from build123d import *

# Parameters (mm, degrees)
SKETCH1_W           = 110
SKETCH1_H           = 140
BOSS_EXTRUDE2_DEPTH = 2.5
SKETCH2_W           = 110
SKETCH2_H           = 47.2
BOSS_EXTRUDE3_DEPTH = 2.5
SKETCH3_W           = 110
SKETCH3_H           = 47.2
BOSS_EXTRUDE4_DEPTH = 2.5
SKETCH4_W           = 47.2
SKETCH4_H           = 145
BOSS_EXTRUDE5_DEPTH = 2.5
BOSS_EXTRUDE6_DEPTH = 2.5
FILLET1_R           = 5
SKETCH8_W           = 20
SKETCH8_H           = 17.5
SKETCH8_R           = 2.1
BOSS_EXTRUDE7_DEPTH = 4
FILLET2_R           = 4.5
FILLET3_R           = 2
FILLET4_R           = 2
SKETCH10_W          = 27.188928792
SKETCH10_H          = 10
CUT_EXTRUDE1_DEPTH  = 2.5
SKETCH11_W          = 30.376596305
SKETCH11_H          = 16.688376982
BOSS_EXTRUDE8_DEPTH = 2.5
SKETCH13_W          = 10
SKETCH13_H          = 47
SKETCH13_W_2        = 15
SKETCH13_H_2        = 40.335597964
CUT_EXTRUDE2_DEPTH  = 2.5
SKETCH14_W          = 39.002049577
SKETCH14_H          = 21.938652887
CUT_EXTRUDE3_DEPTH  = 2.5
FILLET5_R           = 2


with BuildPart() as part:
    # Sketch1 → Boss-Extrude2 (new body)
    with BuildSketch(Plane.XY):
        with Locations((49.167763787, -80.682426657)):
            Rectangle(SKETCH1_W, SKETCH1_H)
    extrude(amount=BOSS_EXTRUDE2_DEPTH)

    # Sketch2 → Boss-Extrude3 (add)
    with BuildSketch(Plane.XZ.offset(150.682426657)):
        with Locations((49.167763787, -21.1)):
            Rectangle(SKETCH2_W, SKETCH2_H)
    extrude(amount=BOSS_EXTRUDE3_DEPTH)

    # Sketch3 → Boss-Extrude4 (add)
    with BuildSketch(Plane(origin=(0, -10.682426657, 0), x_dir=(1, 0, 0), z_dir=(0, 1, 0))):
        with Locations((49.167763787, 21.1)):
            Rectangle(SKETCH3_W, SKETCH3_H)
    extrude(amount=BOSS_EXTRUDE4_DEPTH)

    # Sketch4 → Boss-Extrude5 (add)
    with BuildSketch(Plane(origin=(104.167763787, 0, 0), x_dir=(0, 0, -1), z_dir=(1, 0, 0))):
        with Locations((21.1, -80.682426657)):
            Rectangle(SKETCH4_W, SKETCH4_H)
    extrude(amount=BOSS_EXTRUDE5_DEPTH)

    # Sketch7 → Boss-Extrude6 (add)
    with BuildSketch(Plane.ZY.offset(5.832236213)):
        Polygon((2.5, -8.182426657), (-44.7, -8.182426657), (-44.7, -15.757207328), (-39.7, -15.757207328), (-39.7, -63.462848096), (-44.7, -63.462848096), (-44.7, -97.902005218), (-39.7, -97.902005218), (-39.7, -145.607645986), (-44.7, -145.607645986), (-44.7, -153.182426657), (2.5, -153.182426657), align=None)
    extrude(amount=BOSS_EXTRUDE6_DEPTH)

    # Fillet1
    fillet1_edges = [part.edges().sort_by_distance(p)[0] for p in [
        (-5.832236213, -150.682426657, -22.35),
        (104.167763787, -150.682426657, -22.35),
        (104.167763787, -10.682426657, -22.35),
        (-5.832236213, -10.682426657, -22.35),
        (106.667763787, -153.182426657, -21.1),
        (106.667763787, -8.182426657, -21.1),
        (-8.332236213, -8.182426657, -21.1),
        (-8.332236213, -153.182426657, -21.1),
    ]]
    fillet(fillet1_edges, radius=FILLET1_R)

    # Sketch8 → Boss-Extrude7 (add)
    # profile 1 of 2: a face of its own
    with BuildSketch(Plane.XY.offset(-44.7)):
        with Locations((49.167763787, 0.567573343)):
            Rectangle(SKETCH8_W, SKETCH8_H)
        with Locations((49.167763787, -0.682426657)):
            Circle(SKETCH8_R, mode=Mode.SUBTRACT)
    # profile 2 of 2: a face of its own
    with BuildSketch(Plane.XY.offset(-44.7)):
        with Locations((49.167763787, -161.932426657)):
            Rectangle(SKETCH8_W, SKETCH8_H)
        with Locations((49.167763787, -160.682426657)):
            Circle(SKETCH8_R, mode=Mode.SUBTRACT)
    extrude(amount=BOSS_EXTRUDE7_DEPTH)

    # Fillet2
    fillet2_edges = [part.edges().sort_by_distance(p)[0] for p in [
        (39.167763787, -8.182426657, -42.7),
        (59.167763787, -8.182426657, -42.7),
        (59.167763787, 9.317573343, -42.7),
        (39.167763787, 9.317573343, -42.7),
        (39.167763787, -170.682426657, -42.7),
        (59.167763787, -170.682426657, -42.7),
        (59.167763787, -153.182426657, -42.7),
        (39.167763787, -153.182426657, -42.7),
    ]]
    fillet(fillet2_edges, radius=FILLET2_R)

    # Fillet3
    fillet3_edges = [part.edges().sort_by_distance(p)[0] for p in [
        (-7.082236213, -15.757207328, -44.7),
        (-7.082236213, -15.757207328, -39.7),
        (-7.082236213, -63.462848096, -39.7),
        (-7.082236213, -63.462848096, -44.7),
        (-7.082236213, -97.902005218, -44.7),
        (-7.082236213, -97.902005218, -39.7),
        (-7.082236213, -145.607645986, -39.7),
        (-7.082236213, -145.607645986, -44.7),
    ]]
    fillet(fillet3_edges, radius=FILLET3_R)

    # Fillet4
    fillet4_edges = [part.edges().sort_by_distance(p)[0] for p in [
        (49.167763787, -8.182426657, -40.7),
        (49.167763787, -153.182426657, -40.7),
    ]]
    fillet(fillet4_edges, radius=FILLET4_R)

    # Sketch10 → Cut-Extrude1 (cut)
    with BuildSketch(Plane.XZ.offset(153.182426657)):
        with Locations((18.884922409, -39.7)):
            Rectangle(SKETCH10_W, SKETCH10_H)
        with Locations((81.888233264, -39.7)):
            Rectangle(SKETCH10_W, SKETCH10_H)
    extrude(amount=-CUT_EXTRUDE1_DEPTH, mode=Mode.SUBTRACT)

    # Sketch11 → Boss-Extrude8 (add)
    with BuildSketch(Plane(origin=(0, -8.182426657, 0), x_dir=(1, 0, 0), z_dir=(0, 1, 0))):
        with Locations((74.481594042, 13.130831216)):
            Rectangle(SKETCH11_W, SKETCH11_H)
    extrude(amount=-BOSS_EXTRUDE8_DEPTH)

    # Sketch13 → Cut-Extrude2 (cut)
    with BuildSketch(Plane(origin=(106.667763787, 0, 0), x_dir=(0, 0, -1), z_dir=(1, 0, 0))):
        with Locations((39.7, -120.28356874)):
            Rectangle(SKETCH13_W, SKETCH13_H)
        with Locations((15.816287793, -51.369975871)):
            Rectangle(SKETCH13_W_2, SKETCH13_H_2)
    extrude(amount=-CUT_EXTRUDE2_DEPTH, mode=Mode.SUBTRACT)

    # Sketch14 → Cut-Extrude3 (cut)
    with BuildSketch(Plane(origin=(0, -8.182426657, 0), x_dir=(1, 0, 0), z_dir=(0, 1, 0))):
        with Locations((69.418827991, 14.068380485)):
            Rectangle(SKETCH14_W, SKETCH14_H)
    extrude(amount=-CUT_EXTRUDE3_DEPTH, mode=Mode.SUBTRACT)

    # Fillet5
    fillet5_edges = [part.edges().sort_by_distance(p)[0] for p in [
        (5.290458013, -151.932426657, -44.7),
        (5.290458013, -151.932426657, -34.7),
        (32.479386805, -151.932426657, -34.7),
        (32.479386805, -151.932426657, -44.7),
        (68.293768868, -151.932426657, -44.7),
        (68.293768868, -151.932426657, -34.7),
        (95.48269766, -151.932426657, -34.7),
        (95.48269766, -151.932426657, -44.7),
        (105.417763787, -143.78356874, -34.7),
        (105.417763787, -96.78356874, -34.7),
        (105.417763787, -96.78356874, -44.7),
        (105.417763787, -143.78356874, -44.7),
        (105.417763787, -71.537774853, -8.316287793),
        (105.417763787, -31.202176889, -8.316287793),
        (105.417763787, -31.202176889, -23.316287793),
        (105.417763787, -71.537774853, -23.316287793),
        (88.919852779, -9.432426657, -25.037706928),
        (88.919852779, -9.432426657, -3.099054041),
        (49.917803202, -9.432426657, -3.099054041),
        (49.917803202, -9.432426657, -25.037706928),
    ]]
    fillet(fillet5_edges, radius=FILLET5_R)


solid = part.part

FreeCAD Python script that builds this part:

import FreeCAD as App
import Part
import Sketcher
Q = App.Units.Quantity


def edges_at(feature, points):
    """Names of the edges that pass closest to the given points."""
    edges = feature.Shape.Edges
    near = lambda p: min(range(len(edges)), key=lambda i: edges[i].distToShape(Part.Vertex(*p))[0])
    return sorted({f"Edge{near(p) + 1}" for p in points})

doc = App.newDocument("Part")
body = doc.addObject("PartDesign::Body", "Body")

# Sketch on XY plane
sketch1 = body.newObject("Sketcher::SketchObject", "Sketch")
sketch1.AttachmentSupport = (doc.getObject("XY_Plane"), [""])
sketch1.MapMode = "FlatFace"
sketch1.addGeometry([
    Part.LineSegment(App.Vector(-6, -11, 0), App.Vector(-6, -151, 0)),
    Part.LineSegment(App.Vector(-6, -151, 0), App.Vector(104, -151, 0)),
    Part.LineSegment(App.Vector(104, -151, 0), App.Vector(104, -11, 0)),
    Part.LineSegment(App.Vector(104, -11, 0), App.Vector(-6, -11, 0)),
], False)
sketch1.addConstraint([
    Sketcher.Constraint("Coincident", 0, 2, 1, 1),
    Sketcher.Constraint("Coincident", 1, 2, 2, 1),
    Sketcher.Constraint("Coincident", 2, 2, 3, 1),
    Sketcher.Constraint("Coincident", 3, 2, 0, 1),
    Sketcher.Constraint("Vertical", 0),
    Sketcher.Constraint("Horizontal", 1),
    Sketcher.Constraint("Vertical", 2),
    Sketcher.Constraint("Horizontal", 3),
    Sketcher.Constraint("DistanceX", 1, 1, 1, 2, Q("110 mm")),
    Sketcher.Constraint("DistanceY", 0, 2, 0, 1, Q("140 mm")),
    Sketcher.Constraint("DistanceX", 0, 2, -1, 1, Q("5.832236 mm")),
    Sketcher.Constraint("DistanceY", 0, 2, -1, 1, Q("150.682427 mm")),
])
pad1 = body.newObject("PartDesign::Pad", "Pad")
pad1.Profile = sketch1
pad1.Length = 2.5

# Sketch on XZ plane
sketch2 = body.newObject("Sketcher::SketchObject", "Sketch001")
sketch2.AttachmentSupport = (doc.getObject("XZ_Plane"), [""])
sketch2.MapMode = "FlatFace"
sketch2.AttachmentOffset = App.Placement(App.Vector(0, 0, 150.682427), App.Rotation())
sketch2.addGeometry([
    Part.LineSegment(App.Vector(-6, 2, 0), App.Vector(-6, -45, 0)),
    Part.LineSegment(App.Vector(-6, -45, 0), App.Vector(104, -45, 0)),
    Part.LineSegment(App.Vector(104, -45, 0), App.Vector(104, 2, 0)),
    Part.LineSegment(App.Vector(104, 2, 0), App.Vector(-6, 2, 0)),
], False)
sketch2.addConstraint([
    Sketcher.Constraint("Coincident", 0, 2, 1, 1),
    Sketcher.Constraint("Coincident", 1, 2, 2, 1),
    Sketcher.Constraint("Coincident", 2, 2, 3, 1),
    Sketcher.Constraint("Coincident", 3, 2, 0, 1),
    Sketcher.Constraint("Vertical", 0),
    Sketcher.Constraint("Horizontal", 1),
    Sketcher.Constraint("Vertical", 2),
    Sketcher.Constraint("Horizontal", 3),
    Sketcher.Constraint("DistanceX", 1, 1, 1, 2, Q("110 mm")),
    Sketcher.Constraint("DistanceY", 0, 2, 0, 1, Q("47.2 mm")),
    Sketcher.Constraint("DistanceY", 0, 2, -1, 1, Q("44.7 mm")),
    Sketcher.Constraint("DistanceX", 0, 2, -1, 1, Q("5.832236 mm")),
])
pad2 = body.newObject("PartDesign::Pad", "Pad001")
pad2.Profile = sketch2
pad2.Length = 2.5

# Sketch on XZ plane
sketch3 = body.newObject("Sketcher::SketchObject", "Sketch002")
sketch3.AttachmentSupport = (doc.getObject("XZ_Plane"), [""])
sketch3.MapMode = "FlatFace"
sketch3.AttachmentOffset = App.Placement(App.Vector(0, 0, 10.682427), App.Rotation())
sketch3.addGeometry([
    Part.LineSegment(App.Vector(-6, -45, 0), App.Vector(-6, 2, 0)),
    Part.LineSegment(App.Vector(-6, 2, 0), App.Vector(104, 2, 0)),
    Part.LineSegment(App.Vector(104, 2, 0), App.Vector(104, -45, 0)),
    Part.LineSegment(App.Vector(104, -45, 0), App.Vector(-6, -45, 0)),
], False)
sketch3.addConstraint([
    Sketcher.Constraint("Coincident", 0, 2, 1, 1),
    Sketcher.Constraint("Coincident", 1, 2, 2, 1),
    Sketcher.Constraint("Coincident", 2, 2, 3, 1),
    Sketcher.Constraint("Coincident", 3, 2, 0, 1),
    Sketcher.Constraint("Vertical", 0),
    Sketcher.Constraint("Horizontal", 1),
    Sketcher.Constraint("Vertical", 2),
    Sketcher.Constraint("Horizontal", 3),
    Sketcher.Constraint("DistanceX", 1, 1, 1, 2, Q("110 mm")),
    Sketcher.Constraint("DistanceY", 0, 1, 0, 2, Q("47.2 mm")),
    Sketcher.Constraint("DistanceY", -1, 1, 0, 2, Q("2.5 mm")),
    Sketcher.Constraint("DistanceX", 0, 2, -1, 1, Q("5.832236 mm")),
])
pad3 = body.newObject("PartDesign::Pad", "Pad002")
pad3.Profile = sketch3
pad3.Length = 2.5
pad3.Reversed = True

# Sketch on YZ plane
sketch4 = body.newObject("Sketcher::SketchObject", "Sketch003")
sketch4.AttachmentSupport = (doc.getObject("YZ_Plane"), [""])
sketch4.MapMode = "FlatFace"
sketch4.AttachmentOffset = App.Placement(App.Vector(0, 0, 104.167764), App.Rotation())
sketch4.addGeometry([
    Part.LineSegment(App.Vector(-8, 2, 0), App.Vector(-153, 2, 0)),
    Part.LineSegment(App.Vector(-153, 2, 0), App.Vector(-153, -45, 0)),
    Part.LineSegment(App.Vector(-153, -45, 0), App.Vector(-8, -45, 0)),
    Part.LineSegment(App.Vector(-8, -45, 0), App.Vector(-8, 2, 0)),
], False)
sketch4.addConstraint([
    Sketcher.Constraint("Coincident", 0, 2, 1, 1),
    Sketcher.Constraint("Coincident", 1, 2, 2, 1),
    Sketcher.Constraint("Coincident", 2, 2, 3, 1),
    Sketcher.Constraint("Coincident", 3, 2, 0, 1),
    Sketcher.Constraint("Horizontal", 0),
    Sketcher.Constraint("Vertical", 1),
    Sketcher.Constraint("Horizontal", 2),
    Sketcher.Constraint("Vertical", 3),
    Sketcher.Constraint("DistanceX", 0, 2, 0, 1, Q("145 mm")),
    Sketcher.Constraint("DistanceY", 1, 2, 1, 1, Q("47.2 mm")),
    Sketcher.Constraint("DistanceY", -1, 1, 0, 2, Q("2.5 mm")),
    Sketcher.Constraint("DistanceX", 0, 2, -1, 1, Q("153.182427 mm")),
])
pad4 = body.newObject("PartDesign::Pad", "Pad003")
pad4.Profile = sketch4
pad4.Length = 2.5

# Sketch on YZ plane
sketch5 = body.newObject("Sketcher::SketchObject", "Sketch004")
sketch5.AttachmentSupport = (doc.getObject("YZ_Plane"), [""])
sketch5.MapMode = "FlatFace"
sketch5.AttachmentOffset = App.Placement(App.Vector(0, 0, -5.832236), App.Rotation())
sketch5.addGeometry([
    Part.LineSegment(App.Vector(-8, 2, 0), App.Vector(-8, -45, 0)),  # 0
    Part.LineSegment(App.Vector(-8, -45, 0), App.Vector(-16, -45, 0)),  # 1
    Part.LineSegment(App.Vector(-16, -45, 0), App.Vector(-16, -40, 0)),  # 2
    Part.LineSegment(App.Vector(-16, -40, 0), App.Vector(-63, -40, 0)),  # 3
    Part.LineSegment(App.Vector(-63, -40, 0), App.Vector(-63, -45, 0)),  # 4
    Part.LineSegment(App.Vector(-63, -45, 0), App.Vector(-98, -45, 0)),  # 5
    Part.LineSegment(App.Vector(-98, -45, 0), App.Vector(-98, -40, 0)),  # 6
    Part.LineSegment(App.Vector(-98, -40, 0), App.Vector(-146, -40, 0)),  # 7
    Part.LineSegment(App.Vector(-146, -40, 0), App.Vector(-146, -45, 0)),  # 8
    Part.LineSegment(App.Vector(-146, -45, 0), App.Vector(-153, -45, 0)),  # 9
    Part.LineSegment(App.Vector(-153, -45, 0), App.Vector(-153, 2, 0)),  # 10
    Part.LineSegment(App.Vector(-153, 2, 0), App.Vector(-8, 2, 0)),  # 11
], False)
sketch5.addConstraint([
    Sketcher.Constraint("Coincident", 0, 2, 1, 1),
    Sketcher.Constraint("Coincident", 1, 2, 2, 1),
    Sketcher.Constraint("Coincident", 2, 2, 3, 1),
    Sketcher.Constraint("Coincident", 3, 2, 4, 1),
    Sketcher.Constraint("Coincident", 4, 2, 5, 1),
    Sketcher.Constraint("Coincident", 5, 2, 6, 1),
    Sketcher.Constraint("Coincident", 6, 2, 7, 1),
    Sketcher.Constraint("Coincident", 7, 2, 8, 1),
    Sketcher.Constraint("Coincident", 8, 2, 9, 1),
    Sketcher.Constraint("Coincident", 9, 2, 10, 1),
    Sketcher.Constraint("Coincident", 10, 2, 11, 1),
    Sketcher.Constraint("Coincident", 11, 2, 0, 1),
    Sketcher.Constraint("Vertical", 0),
    Sketcher.Constraint("Horizontal", 1),
    Sketcher.Constraint("Vertical", 2),
    Sketcher.Constraint("Horizontal", 3),
    Sketcher.Constraint("Vertical", 4),
    Sketcher.Constraint("Horizontal", 5),
    Sketcher.Constraint("Vertical", 6),
    Sketcher.Constraint("Horizontal", 7),
    Sketcher.Constraint("Vertical", 8),
    Sketcher.Constraint("Horizontal", 9),
    Sketcher.Constraint("Vertical", 10),
    Sketcher.Constraint("Horizontal", 11),
    Sketcher.Constraint("Horizontal", 1, 2, 4, 2),
    Sketcher.Constraint("Horizontal", 3, 2, 6, 2),
    Sketcher.Constraint("Horizontal", 5, 2, 8, 2),
    Sketcher.Constraint("Equal", 3, 7),
    Sketcher.Constraint("Equal", 1, 9),
    Sketcher.Constraint("DistanceX", 11, 1, 11, 2, Q("145 mm")),
    Sketcher.Constraint("DistanceY", 2, 1, 2, 2, Q("5 mm")),
    Sketcher.Constraint("DistanceY", 0, 2, 0, 1, Q("47.2 mm")),
    Sketcher.Constraint("DistanceY", 0, 2, -1, 1, Q("44.7 mm")),
    Sketcher.Constraint("DistanceX", 1, 2, 1, 1, Q("7.574781 mm")),
    Sketcher.Constraint("DistanceX", 3, 2, 3, 1, Q("47.705641 mm")),
    Sketcher.Constraint("DistanceX", 3, 2, -1, 1, Q("63.462848 mm")),
])
pad5 = body.newObject("PartDesign::Pad", "Pad004")
pad5.Profile = sketch5
pad5.Length = 2.5
pad5.Reversed = True
doc.recompute()

fillet = body.newObject("PartDesign::Fillet", "Fillet")
fillet.Base = (pad5, edges_at(pad5, [
    (-5.832, -150.682, -22.35),
    (104.168, -150.682, -22.35),
    (104.168, -10.682, -22.35),
    (-5.832, -10.682, -22.35),
    (106.668, -153.182, -21.1),
    (106.668, -8.182, -21.1),
    (-8.332, -8.182, -21.1),
    (-8.332, -153.182, -21.1),
]))
fillet.Radius = 5

# Sketch on XY plane
sketch6 = body.newObject("Sketcher::SketchObject", "Sketch005")
sketch6.AttachmentSupport = (doc.getObject("XY_Plane"), [""])
sketch6.MapMode = "FlatFace"
sketch6.AttachmentOffset = App.Placement(App.Vector(0, 0, -44.7), App.Rotation())
sketch6.addGeometry([
    Part.LineSegment(App.Vector(39.2, 9.3, 0), App.Vector(39.2, -8.2, 0)),  # 0
    Part.LineSegment(App.Vector(39.2, -8.2, 0), App.Vector(59.2, -8.2, 0)),  # 1
    Part.LineSegment(App.Vector(59.2, -8.2, 0), App.Vector(59.2, 9.3, 0)),  # 2
    Part.LineSegment(App.Vector(59.2, 9.3, 0), App.Vector(39.2, 9.3, 0)),  # 3
    Part.Circle(App.Vector(49.2, -0.7, 0), App.Vector(0, 0, 1), 2.1),  # 4
    Part.LineSegment(App.Vector(39.2, -153.2, 0), App.Vector(39.2, -170.7, 0)),  # 5
    Part.LineSegment(App.Vector(39.2, -170.7, 0), App.Vector(59.2, -170.7, 0)),  # 6
    Part.LineSegment(App.Vector(59.2, -170.7, 0), App.Vector(59.2, -153.2, 0)),  # 7
    Part.LineSegment(App.Vector(59.2, -153.2, 0), App.Vector(39.2, -153.2, 0)),  # 8
    Part.Circle(App.Vector(49.2, -160.7, 0), App.Vector(0, 0, 1), 2.1),  # 9
], False)
sketch6.addConstraint([
    Sketcher.Constraint("Coincident", 0, 2, 1, 1),
    Sketcher.Constraint("Coincident", 1, 2, 2, 1),
    Sketcher.Constraint("Coincident", 2, 2, 3, 1),
    Sketcher.Constraint("Coincident", 3, 2, 0, 1),
    Sketcher.Constraint("Coincident", 5, 2, 6, 1),
    Sketcher.Constraint("Coincident", 6, 2, 7, 1),
    Sketcher.Constraint("Coincident", 7, 2, 8, 1),
    Sketcher.Constraint("Coincident", 8, 2, 5, 1),
    Sketcher.Constraint("Vertical", 0),
    Sketcher.Constraint("Horizontal", 1),
    Sketcher.Constraint("Vertical", 2),
    Sketcher.Constraint("Horizontal", 3),
    Sketcher.Constraint("Vertical", 5),
    Sketcher.Constraint("Horizontal", 6),
    Sketcher.Constraint("Vertical", 7),
    Sketcher.Constraint("Horizontal", 8),
    Sketcher.Constraint("Equal", 4, 9),
    Sketcher.Constraint("Vertical", 4, 3, 9, 3),
    Sketcher.Constraint("Vertical", 3, 2, 5, 2),
    Sketcher.Constraint("Vertical", 2, 2, 6, 2),
    Sketcher.Constraint("Equal", 2, 5),
    Sketcher.Constraint("Diameter", 4, Q("4.2 mm")),
    Sketcher.Constraint("DistanceX", 1, 1, 1, 2, Q("20 mm")),
    Sketcher.Constraint("DistanceY", 0, 2, 0, 1, Q("17.5 mm")),
    Sketcher.Constraint("DistanceY", 9, 3, 4, 3, Q("160 mm")),
    Sketcher.Constraint("DistanceX", 0, 2, 4, 3, Q("10 mm")),
    Sketcher.Constraint("DistanceY", 4, 3, 2, 2, Q("10 mm")),
    Sketcher.Constraint("DistanceY", 5, 2, 9, 3, Q("10 mm")),
    Sketcher.Constraint("DistanceX", -1, 1, 4, 3, Q("49.167764 mm")),
    Sketcher.Constraint("DistanceY", 4, 3, -1, 1, Q("0.682427 mm")),
])
pad6 = body.newObject("PartDesign::Pad", "Pad005")
pad6.Profile = sketch6
pad6.Length = 4
doc.recompute()

fillet2 = body.newObject("PartDesign::Fillet", "Fillet001")
fillet2.Base = (pad6, edges_at(pad6, [
    (39.168, -8.182, -42.7),
    (59.168, -8.182, -42.7),
    (59.168, 9.318, -42.7),
    (39.168, 9.318, -42.7),
    (39.168, -170.682, -42.7),
    (59.168, -170.682, -42.7),
    (59.168, -153.182, -42.7),
    (39.168, -153.182, -42.7),
]))
fillet2.Radius = 4.5
doc.recompute()

fillet3 = body.newObject("PartDesign::Fillet", "Fillet002")
fillet3.Base = (fillet2, edges_at(fillet2, [
    (-7.082, -15.757, -44.7),
    (-7.082, -15.757, -39.7),
    (-7.082, -63.463, -39.7),
    (-7.082, -63.463, -44.7),
    (-7.082, -97.902, -44.7),
    (-7.082, -97.902, -39.7),
    (-7.082, -145.608, -39.7),
    (-7.082, -145.608, -44.7),
]))
fillet3.Radius = 2
doc.recompute()

fillet4 = body.newObject("PartDesign::Fillet", "Fillet003")
fillet4.Base = (fillet3, edges_at(fillet3, [(49.168, -8.182, -40.7), (49.168, -153.182, -40.7)]))
fillet4.Radius = 2

# Sketch on XZ plane
sketch7 = body.newObject("Sketcher::SketchObject", "Sketch006")
sketch7.AttachmentSupport = (doc.getObject("XZ_Plane"), [""])
sketch7.MapMode = "FlatFace"
sketch7.AttachmentOffset = App.Placement(App.Vector(0, 0, 153.182427), App.Rotation())
sketch7.addGeometry([
    Part.LineSegment(App.Vector(5, -35, 0), App.Vector(5, -45, 0)),  # 0
    Part.LineSegment(App.Vector(5, -45, 0), App.Vector(32, -45, 0)),  # 1
    Part.LineSegment(App.Vector(32, -45, 0), App.Vector(32, -35, 0)),  # 2
    Part.LineSegment(App.Vector(32, -35, 0), App.Vector(5, -35, 0)),  # 3
    Part.LineSegment(App.Vector(68, -35, 0), App.Vector(68, -45, 0)),  # 4
    Part.LineSegment(App.Vector(68, -45, 0), App.Vector(95, -45, 0)),  # 5
    Part.LineSegment(App.Vector(95, -45, 0), App.Vector(95, -35, 0)),  # 6
    Part.LineSegment(App.Vector(95, -35, 0), App.Vector(68, -35, 0)),  # 7
], False)
sketch7.addConstraint([
    Sketcher.Constraint("Coincident", 0, 2, 1, 1),
    Sketcher.Constraint("Coincident", 1, 2, 2, 1),
    Sketcher.Constraint("Coincident", 2, 2, 3, 1),
    Sketcher.Constraint("Coincident", 3, 2, 0, 1),
    Sketcher.Constraint("Coincident", 4, 2, 5, 1),
    Sketcher.Constraint("Coincident", 5, 2, 6, 1),
    Sketcher.Constraint("Coincident", 6, 2, 7, 1),
    Sketcher.Constraint("Coincident", 7, 2, 4, 1),
    Sketcher.Constraint("Vertical", 0),
    Sketcher.Constraint("Horizontal", 1),
    Sketcher.Constraint("Vertical", 2),
    Sketcher.Constraint("Horizontal", 3),
    Sketcher.Constraint("Vertical", 4),
    Sketcher.Constraint("Horizontal", 5),
    Sketcher.Constraint("Vertical", 6),
    Sketcher.Constraint("Horizontal", 7),
    Sketcher.Constraint("Horizontal", 1, 2, 4, 2),
    Sketcher.Constraint("Horizontal", 3, 2, 6, 2),
    Sketcher.Constraint("Equal", 3, 5),
    Sketcher.Constraint("DistanceY", 0, 2, 0, 1, Q("10 mm")),
    Sketcher.Constraint("DistanceY", 0, 2, -1, 1, Q("44.7 mm")),
    Sketcher.Constraint("DistanceX", 1, 1, 1, 2, Q("27.188929 mm")),
    Sketcher.Constraint("DistanceX", -1, 1, 0, 2, Q("5.290458 mm")),
    Sketcher.Constraint("DistanceX", -1, 1, 4, 2, Q("68.293769 mm")),
])
pocket1 = body.newObject("PartDesign::Pocket", "Pocket")
pocket1.Profile = sketch7
pocket1.Length = 2.5

# Sketch on XZ plane
sketch8 = body.newObject("Sketcher::SketchObject", "Sketch007")
sketch8.AttachmentSupport = (doc.getObject("XZ_Plane"), [""])
sketch8.MapMode = "FlatFace"
sketch8.AttachmentOffset = App.Placement(App.Vector(0, 0, 8.182427), App.Rotation())
sketch8.addGeometry([
    Part.LineSegment(App.Vector(59, -21, 0), App.Vector(59, -5, 0)),
    Part.LineSegment(App.Vector(59, -5, 0), App.Vector(90, -5, 0)),
    Part.LineSegment(App.Vector(90, -5, 0), App.Vector(90, -21, 0)),
    Part.LineSegment(App.Vector(90, -21, 0), App.Vector(59, -21, 0)),
], False)
sketch8.addConstraint([
    Sketcher.Constraint("Coincident", 0, 2, 1, 1),
    Sketcher.Constraint("Coincident", 1, 2, 2, 1),
    Sketcher.Constraint("Coincident", 2, 2, 3, 1),
    Sketcher.Constraint("Coincident", 3, 2, 0, 1),
    Sketcher.Constraint("Vertical", 0),
    Sketcher.Constraint("Horizontal", 1),
    Sketcher.Constraint("Vertical", 2),
    Sketcher.Constraint("Horizontal", 3),
    Sketcher.Constraint("DistanceX", 1, 1, 1, 2, Q("30.376596 mm")),
    Sketcher.Constraint("DistanceY", 0, 1, 0, 2, Q("16.688377 mm")),
    Sketcher.Constraint("DistanceY", 2, 2, -1, 1, Q("21.47502 mm")),
    Sketcher.Constraint("DistanceX", -1, 1, 0, 2, Q("59.293296 mm")),
])
pad7 = body.newObject("PartDesign::Pad", "Pad006")
pad7.Profile = sketch8
pad7.Length = 2.5

# Sketch on YZ plane
sketch9 = body.newObject("Sketcher::SketchObject", "Sketch008")
sketch9.AttachmentSupport = (doc.getObject("YZ_Plane"), [""])
sketch9.MapMode = "FlatFace"
sketch9.AttachmentOffset = App.Placement(App.Vector(0, 0, 106.667764), App.Rotation())
sketch9.addGeometry([
    Part.LineSegment(App.Vector(-97, -35, 0), App.Vector(-144, -35, 0)),  # 0
    Part.LineSegment(App.Vector(-144, -35, 0), App.Vector(-144, -45, 0)),  # 1
    Part.LineSegment(App.Vector(-144, -45, 0), App.Vector(-97, -45, 0)),  # 2
    Part.LineSegment(App.Vector(-97, -45, 0), App.Vector(-97, -35, 0)),  # 3
    Part.LineSegment(App.Vector(-31, -8, 0), App.Vector(-72, -8, 0)),  # 4
    Part.LineSegment(App.Vector(-72, -8, 0), App.Vector(-72, -23, 0)),  # 5
    Part.LineSegment(App.Vector(-72, -23, 0), App.Vector(-31, -23, 0)),  # 6
    Part.LineSegment(App.Vector(-31, -23, 0), App.Vector(-31, -8, 0)),  # 7
], False)
sketch9.addConstraint([
    Sketcher.Constraint("Coincident", 0, 2, 1, 1),
    Sketcher.Constraint("Coincident", 1, 2, 2, 1),
    Sketcher.Constraint("Coincident", 2, 2, 3, 1),
    Sketcher.Constraint("Coincident", 3, 2, 0, 1),
    Sketcher.Constraint("Coincident", 4, 2, 5, 1),
    Sketcher.Constraint("Coincident", 5, 2, 6, 1),
    Sketcher.Constraint("Coincident", 6, 2, 7, 1),
    Sketcher.Constraint("Coincident", 7, 2, 4, 1),
    Sketcher.Constraint("Horizontal", 0),
    Sketcher.Constraint("Vertical", 1),
    Sketcher.Constraint("Horizontal", 2),
    Sketcher.Constraint("Vertical", 3),
    Sketcher.Constraint("Horizontal", 4),
    Sketcher.Constraint("Vertical", 5),
    Sketcher.Constraint("Horizontal", 6),
    Sketcher.Constraint("Vertical", 7),
    Sketcher.Constraint("DistanceX", 0, 2, 0, 1, Q("47 mm")),
    Sketcher.Constraint("DistanceY", 1, 2, 1, 1, Q("10 mm")),
    Sketcher.Constraint("DistanceY", 5, 2, 5, 1, Q("15 mm")),
    Sketcher.Constraint("DistanceY", 0, 2, -1, 1, Q("34.7 mm")),
    Sketcher.Constraint("DistanceX", 4, 2, 4, 1, Q("40.335598 mm")),
    Sketcher.Constraint("DistanceX", 0, 2, -1, 1, Q("143.783569 mm")),
    Sketcher.Constraint("DistanceX", 3, 2, 6, 2, Q("65.581392 mm")),
    Sketcher.Constraint("DistanceY", 4, 2, -1, 1, Q("8.316288 mm")),
])
pocket2 = body.newObject("PartDesign::Pocket", "Pocket001")
pocket2.Profile = sketch9
pocket2.Length = 2.5

# Sketch on XZ plane
sketch10 = body.newObject("Sketcher::SketchObject", "Sketch009")
sketch10.AttachmentSupport = (doc.getObject("XZ_Plane"), [""])
sketch10.MapMode = "FlatFace"
sketch10.AttachmentOffset = App.Placement(App.Vector(0, 0, 8.182427), App.Rotation())
sketch10.addGeometry([
    Part.LineSegment(App.Vector(50, -25, 0), App.Vector(50, -3, 0)),
    Part.LineSegment(App.Vector(50, -3, 0), App.Vector(89, -3, 0)),
    Part.LineSegment(App.Vector(89, -3, 0), App.Vector(89, -25, 0)),
    Part.LineSegment(App.Vector(89, -25, 0), App.Vector(50, -25, 0)),
], False)
sketch10.addConstraint([
    Sketcher.Constraint("Coincident", 0, 2, 1, 1),
    Sketcher.Constraint("Coincident", 1, 2, 2, 1),
    Sketcher.Constraint("Coincident", 2, 2, 3, 1),
    Sketcher.Constraint("Coincident", 3, 2, 0, 1),
    Sketcher.Constraint("Vertical", 0),
    Sketcher.Constraint("Horizontal", 1),
    Sketcher.Constraint("Vertical", 2),
    Sketcher.Constraint("Horizontal", 3),
    Sketcher.Constraint("DistanceX", 1, 1, 1, 2, Q("39.00205 mm")),
    Sketcher.Constraint("DistanceY", 0, 1, 0, 2, Q("21.938653 mm")),
    Sketcher.Constraint("DistanceX", -1, 1, 0, 2, Q("49.917803 mm")),
    Sketcher.Constraint("DistanceY", 0, 2, -1, 1, Q("3.099054 mm")),
])
pocket3 = body.newObject("PartDesign::Pocket", "Pocket002")
pocket3.Profile = sketch10
pocket3.Length = 2.5
pocket3.Reversed = True
doc.recompute()

fillet5 = body.newObject("PartDesign::Fillet", "Fillet004")
fillet5.Base = (pocket3, edges_at(pocket3, [
    (5.29, -151.932, -44.7),
    (5.29, -151.932, -34.7),
    (32.479, -151.932, -34.7),
    (32.479, -151.932, -44.7),
    (68.294, -151.932, -44.7),
    (68.294, -151.932, -34.7),
    (95.483, -151.932, -34.7),
    (95.483, -151.932, -44.7),
    (105.418, -143.784, -34.7),
    (105.418, -96.784, -34.7),
    (105.418, -96.784, -44.7),
    (105.418, -143.784, -44.7),
    (105.418, -71.538, -8.316),
    (105.418, -31.202, -8.316),
    (105.418, -31.202, -23.316),
    (105.418, -71.538, -23.316),
    (88.92, -9.432, -25.038),
    (88.92, -9.432, -3.099),
    (49.918, -9.432, -3.099),
    (49.918, -9.432, -25.038),
]))
fillet5.Radius = 2

doc.recompute()
